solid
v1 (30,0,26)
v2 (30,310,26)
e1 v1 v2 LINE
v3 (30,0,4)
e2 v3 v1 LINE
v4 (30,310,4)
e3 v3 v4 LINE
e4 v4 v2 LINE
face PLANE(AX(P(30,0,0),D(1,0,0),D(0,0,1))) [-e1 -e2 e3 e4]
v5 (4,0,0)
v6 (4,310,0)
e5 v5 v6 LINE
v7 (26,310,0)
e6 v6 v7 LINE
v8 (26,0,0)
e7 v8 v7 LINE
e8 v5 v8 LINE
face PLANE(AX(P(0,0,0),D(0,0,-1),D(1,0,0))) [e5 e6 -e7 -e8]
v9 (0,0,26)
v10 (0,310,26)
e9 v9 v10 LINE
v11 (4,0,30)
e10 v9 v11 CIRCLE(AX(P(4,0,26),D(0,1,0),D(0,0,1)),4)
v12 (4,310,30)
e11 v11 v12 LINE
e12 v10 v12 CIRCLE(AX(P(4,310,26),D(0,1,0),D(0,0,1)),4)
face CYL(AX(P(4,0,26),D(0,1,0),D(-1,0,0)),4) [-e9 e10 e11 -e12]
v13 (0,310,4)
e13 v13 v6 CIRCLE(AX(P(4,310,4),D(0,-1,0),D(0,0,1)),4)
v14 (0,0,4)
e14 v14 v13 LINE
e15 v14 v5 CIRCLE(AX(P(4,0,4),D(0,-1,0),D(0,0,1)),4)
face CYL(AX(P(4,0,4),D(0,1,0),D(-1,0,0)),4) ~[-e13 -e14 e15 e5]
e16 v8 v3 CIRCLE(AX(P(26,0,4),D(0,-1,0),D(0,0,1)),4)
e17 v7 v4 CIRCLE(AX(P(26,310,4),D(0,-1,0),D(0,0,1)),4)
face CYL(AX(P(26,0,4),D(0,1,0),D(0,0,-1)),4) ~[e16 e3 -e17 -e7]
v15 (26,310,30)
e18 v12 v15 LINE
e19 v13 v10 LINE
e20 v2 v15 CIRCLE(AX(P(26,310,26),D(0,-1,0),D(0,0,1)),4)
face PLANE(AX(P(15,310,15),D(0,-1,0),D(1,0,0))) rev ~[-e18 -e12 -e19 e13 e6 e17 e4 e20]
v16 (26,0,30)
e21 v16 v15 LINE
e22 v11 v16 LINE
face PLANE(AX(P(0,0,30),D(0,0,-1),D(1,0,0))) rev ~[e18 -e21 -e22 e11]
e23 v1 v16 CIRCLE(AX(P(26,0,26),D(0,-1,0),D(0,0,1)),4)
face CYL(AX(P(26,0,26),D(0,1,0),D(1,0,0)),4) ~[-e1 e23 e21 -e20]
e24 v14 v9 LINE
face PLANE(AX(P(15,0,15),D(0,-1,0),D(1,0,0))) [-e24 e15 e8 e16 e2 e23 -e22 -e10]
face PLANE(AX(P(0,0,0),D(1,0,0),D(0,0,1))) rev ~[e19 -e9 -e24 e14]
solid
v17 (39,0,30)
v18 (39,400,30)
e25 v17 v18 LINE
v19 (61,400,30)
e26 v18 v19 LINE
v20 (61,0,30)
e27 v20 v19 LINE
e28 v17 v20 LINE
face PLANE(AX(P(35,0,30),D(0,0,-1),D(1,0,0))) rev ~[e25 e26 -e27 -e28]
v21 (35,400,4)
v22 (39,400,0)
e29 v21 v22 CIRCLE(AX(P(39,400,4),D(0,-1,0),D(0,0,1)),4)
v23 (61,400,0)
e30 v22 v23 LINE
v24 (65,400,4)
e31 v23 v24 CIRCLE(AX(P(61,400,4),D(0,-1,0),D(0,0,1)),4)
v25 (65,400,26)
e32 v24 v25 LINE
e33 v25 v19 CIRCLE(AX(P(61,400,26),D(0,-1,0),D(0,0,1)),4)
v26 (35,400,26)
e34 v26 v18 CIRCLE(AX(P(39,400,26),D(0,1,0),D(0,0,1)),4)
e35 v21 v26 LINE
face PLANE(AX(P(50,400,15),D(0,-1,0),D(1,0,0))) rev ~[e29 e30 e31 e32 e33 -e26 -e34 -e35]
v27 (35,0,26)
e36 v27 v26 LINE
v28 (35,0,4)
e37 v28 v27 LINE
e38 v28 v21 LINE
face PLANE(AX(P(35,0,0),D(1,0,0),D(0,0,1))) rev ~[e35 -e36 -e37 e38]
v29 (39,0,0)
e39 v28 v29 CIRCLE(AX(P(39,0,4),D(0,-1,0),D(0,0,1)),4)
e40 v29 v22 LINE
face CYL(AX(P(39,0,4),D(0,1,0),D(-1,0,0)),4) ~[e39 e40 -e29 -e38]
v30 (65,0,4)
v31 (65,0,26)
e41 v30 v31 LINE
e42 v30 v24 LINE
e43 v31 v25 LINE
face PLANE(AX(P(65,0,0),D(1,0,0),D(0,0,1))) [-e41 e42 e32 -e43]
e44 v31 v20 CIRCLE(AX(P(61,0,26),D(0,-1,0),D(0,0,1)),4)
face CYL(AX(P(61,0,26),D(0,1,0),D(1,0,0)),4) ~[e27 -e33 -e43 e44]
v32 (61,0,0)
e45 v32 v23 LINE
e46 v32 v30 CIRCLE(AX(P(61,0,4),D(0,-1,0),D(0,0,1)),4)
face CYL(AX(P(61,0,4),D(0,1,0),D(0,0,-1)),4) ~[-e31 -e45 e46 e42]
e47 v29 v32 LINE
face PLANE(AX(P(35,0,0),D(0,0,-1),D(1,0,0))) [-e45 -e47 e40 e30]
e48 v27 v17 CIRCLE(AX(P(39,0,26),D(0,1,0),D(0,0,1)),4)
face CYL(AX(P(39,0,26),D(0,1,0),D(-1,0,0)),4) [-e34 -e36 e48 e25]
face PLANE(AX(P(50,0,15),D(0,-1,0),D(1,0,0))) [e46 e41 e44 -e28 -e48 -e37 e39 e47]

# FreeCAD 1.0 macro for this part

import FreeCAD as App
import Part
import Sketcher

V = App.Vector
Q = App.Units.Quantity


def edges_at(feature, points):
    """Names of the edges that pass closest to the given points."""
    edges = feature.Shape.Edges
    near = lambda p: min(range(len(edges)), key=lambda i: edges[i].distToShape(Part.Vertex(*p))[0])
    return sorted({f"Edge{near(p) + 1}" for p in points})


def add_polygon(sketch, points):
    """Adds a closed chain of lines whose ends are joined by coincident constraints."""
    first, n = sketch.GeometryCount, len(points)
    for a, b in zip(points, points[1:] + points[:1]):
        sketch.addGeometry(Part.LineSegment(App.Vector(*a, 0), App.Vector(*b, 0)), False)
    for i in range(n):
        sketch.addConstraint(Sketcher.Constraint("Coincident", first + i, 2, first + (i + 1) % n, 1))

doc = App.newDocument("Part")
body = doc.addObject("PartDesign::Body", "Body")

sketch1 = body.newObject("Sketcher::SketchObject", "Sketch")
sketch1.AttachmentSupport = (doc.getObject("XZ_Plane"), [""])
sketch1.MapMode = "FlatFace"
add_polygon(sketch1, [(0, 30), (0, 0), (30, 0), (30, 30)])
sketch1.addConstraint(Sketcher.Constraint("Vertical", 0))
sketch1.addConstraint(Sketcher.Constraint("Horizontal", 1))
sketch1.addConstraint(Sketcher.Constraint("Vertical", 2))
sketch1.addConstraint(Sketcher.Constraint("Horizontal", 3))
sketch1.addConstraint(Sketcher.Constraint("Coincident", 0, 2, -1, 1))
sketch1.addConstraint(Sketcher.Constraint("Equal", 3, 0))
sketch1.addConstraint(Sketcher.Constraint("DistanceX", 1, 1, 1, 2, Q("30 mm")))
pad1 = body.newObject("PartDesign::Pad", "Pad")
pad1.Profile = sketch1
pad1.Length = 310
pad1.Reversed = True
doc.recompute()

fillet = body.newObject("PartDesign::Fillet", "Fillet")
fillet.Base = (pad1, edges_at(pad1, [
    (30, 155, 30),
    (30, 155, 0),
    (0, 155, 30),
    (0, 155, 0),
]))
fillet.Radius = 4
body2 = doc.addObject("PartDesign::Body", "Body001")

sketch2 = body2.newObject("Sketcher::SketchObject", "Sketch001")
sketch2.AttachmentSupport = (doc.getObject("XZ_Plane001"), [""])
sketch2.MapMode = "FlatFace"
add_polygon(sketch2, [(35, 30), (35, 0), (65, 0), (65, 30)])
sketch2.addConstraint(Sketcher.Constraint("Vertical", 0))
sketch2.addConstraint(Sketcher.Constraint("Horizontal", 1))
sketch2.addConstraint(Sketcher.Constraint("Vertical", 2))
sketch2.addConstraint(Sketcher.Constraint("Horizontal", 3))
sketch2.addConstraint(Sketcher.Constraint("PointOnObject", 0, 2, -1))
sketch2.addConstraint(Sketcher.Constraint("Equal", 3, 0))
sketch2.addConstraint(Sketcher.Constraint("DistanceX", 1, 1, 1, 2, Q("30 mm")))
sketch2.addConstraint(Sketcher.Constraint("DistanceX", -1, 1, 0, 2, Q("35 mm")))
pad2 = body2.newObject("PartDesign::Pad", "Pad001")
pad2.Profile = sketch2
pad2.Length = 400
pad2.Reversed = True
doc.recompute()

fillet2 = body2.newObject("PartDesign::Fillet", "Fillet001")
fillet2.Base = (pad2, edges_at(pad2, [
    (35, 200, 30),
    (65, 200, 30),
    (65, 200, 0),
    (35, 200, 0),
]))
fillet2.Radius = 4

doc.recompute()
